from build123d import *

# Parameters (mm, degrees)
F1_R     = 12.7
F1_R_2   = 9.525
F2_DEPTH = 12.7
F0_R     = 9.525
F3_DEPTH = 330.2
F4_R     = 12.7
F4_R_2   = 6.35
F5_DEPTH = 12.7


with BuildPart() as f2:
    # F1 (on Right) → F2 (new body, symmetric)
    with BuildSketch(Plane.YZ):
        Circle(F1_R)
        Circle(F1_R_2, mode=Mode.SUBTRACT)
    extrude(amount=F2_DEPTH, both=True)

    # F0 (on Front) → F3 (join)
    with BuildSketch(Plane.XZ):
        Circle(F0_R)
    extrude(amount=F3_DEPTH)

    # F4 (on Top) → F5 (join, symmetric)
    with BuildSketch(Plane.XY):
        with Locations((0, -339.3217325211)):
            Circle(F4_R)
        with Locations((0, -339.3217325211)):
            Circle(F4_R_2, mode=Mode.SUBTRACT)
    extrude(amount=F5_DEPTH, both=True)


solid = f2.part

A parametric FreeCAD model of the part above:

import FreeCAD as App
import Part
import Sketcher

V = App.Vector
Q = App.Units.Quantity

doc = App.newDocument("Part")
body = doc.addObject("PartDesign::Body", "Body")

# Sketch on YZ plane
sketch1 = doc.addObject("Sketcher::SketchObject", "Sketch")
body.addObject(sketch1)
sketch1.AttachmentSupport = (doc.YZ_Plane, [""])
sketch1.MapMode = "FlatFace"
sketch1.addGeometry([
    Part.Circle(V(0, 0, 0), V(0, 0, 1), 13),
    Part.Circle(V(0, 0, 0), V(0, 0, 1), 10),
], False)
sketch1.addConstraint([
    Sketcher.Constraint("Coincident", 0, 3, -1, 1),
    Sketcher.Constraint("Coincident", 1, 3, -1, 1),
    Sketcher.Constraint("Diameter", 0, Q("1 in")),
    Sketcher.Constraint("Diameter", 1, Q("0.75 in")),
])
pad1 = doc.addObject("PartDesign::Pad", "Pad")
body.addObject(pad1)
pad1.Profile = sketch1
pad1.Length = Q("1 in")
pad1.Midplane = True

# Sketch on XZ plane
sketch2 = doc.addObject("Sketcher::SketchObject", "Sketch001")
body.addObject(sketch2)
sketch2.AttachmentSupport = (doc.XZ_Plane, [""])
sketch2.MapMode = "FlatFace"
sketch2.addGeometry(Part.Circle(V(0, 0, 0), V(0, 0, 1), 10), False)
sketch2.addConstraint([
    Sketcher.Constraint("Coincident", 0, 3, -1, 1),
    Sketcher.Constraint("Diameter", 0, Q("0.75 in")),
])
pad2 = doc.addObject("PartDesign::Pad", "Pad001")
body.addObject(pad2)
pad2.Profile = sketch2
pad2.Length = Q("13 in")

# Sketch on XY plane
sketch3 = doc.addObject("Sketcher::SketchObject", "Sketch002")
body.addObject(sketch3)
sketch3.AttachmentSupport = (doc.XY_Plane, [""])
sketch3.MapMode = "FlatFace"
sketch3.addGeometry([
    Part.Circle(V(0, -339, 0), V(0, 0, 1), 13),
    Part.Circle(V(0, -339, 0), V(0, 0, 1), 6),
], False)
sketch3.addConstraint([
    Sketcher.Constraint("Coincident", 1, 3, 0, 3),
    Sketcher.Constraint("PointOnObject", 0, 3, -2),
    Sketcher.Constraint("Diameter", 0, Q("1 in")),
    Sketcher.Constraint("Diameter", 1, Q("0.5 in")),
    Sketcher.Constraint("DistanceY", 0, 3, -1, 1, 339.321733),
])
pad3 = doc.addObject("PartDesign::Pad", "Pad002")
body.addObject(pad3)
pad3.Profile = sketch3
pad3.Length = Q("1 in")
pad3.Midplane = True

doc.recompute()
